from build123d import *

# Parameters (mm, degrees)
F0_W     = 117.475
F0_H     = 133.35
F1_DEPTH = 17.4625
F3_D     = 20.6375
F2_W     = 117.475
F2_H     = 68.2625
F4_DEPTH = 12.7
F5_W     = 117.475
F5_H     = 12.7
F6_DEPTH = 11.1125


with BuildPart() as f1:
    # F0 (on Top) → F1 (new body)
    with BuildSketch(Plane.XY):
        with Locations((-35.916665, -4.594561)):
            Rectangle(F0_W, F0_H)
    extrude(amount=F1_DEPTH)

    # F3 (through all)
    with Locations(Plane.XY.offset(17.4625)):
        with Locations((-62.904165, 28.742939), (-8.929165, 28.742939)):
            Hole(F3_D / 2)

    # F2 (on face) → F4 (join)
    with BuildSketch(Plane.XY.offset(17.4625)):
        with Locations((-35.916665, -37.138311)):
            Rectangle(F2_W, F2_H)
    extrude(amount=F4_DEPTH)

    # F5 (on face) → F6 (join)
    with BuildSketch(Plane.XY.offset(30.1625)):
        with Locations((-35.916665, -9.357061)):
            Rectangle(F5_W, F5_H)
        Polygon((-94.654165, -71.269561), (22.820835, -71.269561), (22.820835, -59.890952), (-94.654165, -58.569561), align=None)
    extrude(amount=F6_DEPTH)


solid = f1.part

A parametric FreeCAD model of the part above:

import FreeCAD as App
import Part
import Sketcher
from FreeCAD import Vector
Q = App.Units.Quantity


def add_polygon(sketch, points):
    """Adds a closed chain of lines whose ends are joined by coincident constraints."""
    first, n = sketch.GeometryCount, len(points)
    for a, b in zip(points, points[1:] + points[:1]):
        sketch.addGeometry(Part.LineSegment(App.Vector(*a, 0), App.Vector(*b, 0)), False)
    for i in range(n):
        sketch.addConstraint(Sketcher.Constraint("Coincident", first + i, 2, first + (i + 1) % n, 1))

doc = App.newDocument("Part")
params = doc.addObject("Spreadsheet::Sheet", "Params")
for row, (alias, value) in enumerate([
    ("sketch1_height", "5.25 in"),
    ("sketch1_width", "4.625 in"),
    ("pad1_length", "0.6875 in"),
    ("sketch2_diameter", "0.8125 in"),
    ("hole_diameter", "0.8125 in"),
    ("sketch3_width", "4.625 in"),
    ("sketch3_height", "2.6875 in"),
    ("pad2_length", "0.5 in"),
    ("sketch4_height", "0.5 in"),
    ("sketch4_width", "4.625 in"),
    ("pad3_length", "0.4375 in"),
], start=1):
    params.set(f"A{row}", alias)
    params.set(f"B{row}", "=" + value)
    params.setAlias(f"B{row}", alias)

body = doc.addObject("PartDesign::Body", "Body")

sketch1 = body.newObject("Sketcher::SketchObject", "Sketch")
sketch1.AttachmentSupport = (doc.getObject("XY_Plane"), [""])
sketch1.MapMode = "FlatFace"
add_polygon(sketch1, [(-95, 62), (-95, -71), (23, -71), (23, 62)])
sketch1.addConstraint(Sketcher.Constraint("Vertical", 0))
sketch1.addConstraint(Sketcher.Constraint("Horizontal", 1))
sketch1.addConstraint(Sketcher.Constraint("Vertical", 2))
sketch1.addConstraint(Sketcher.Constraint("Horizontal", 3))
sketch1.addConstraint(Sketcher.Constraint("DistanceY", 0, 2, 0, 1, Q("5.25 in")))
sketch1.addConstraint(Sketcher.Constraint("DistanceX", 1, 1, 1, 2, Q("4.625 in")))
sketch1.addConstraint(Sketcher.Constraint("DistanceY", 0, 2, -1, 1, Q("71.269561 mm")))
sketch1.addConstraint(Sketcher.Constraint("DistanceX", 0, 2, -1, 1, Q("94.654165 mm")))
sketch1.setExpression("Constraints[8]", "Params.sketch1_height")
sketch1.setExpression("Constraints[9]", "Params.sketch1_width")
pad1 = body.newObject("PartDesign::Pad", "Pad")
pad1.Profile = sketch1
pad1.setExpression("Length", "Params.pad1_length")

sketch2 = body.newObject("Sketcher::SketchObject", "Sketch001")
sketch2.AttachmentSupport = (doc.getObject("XY_Plane"), [""])
sketch2.MapMode = "FlatFace"
sketch2.AttachmentOffset = App.Placement(Vector(0, 0, 0.6875 * 25.4), App.Rotation())
sketch2.addGeometry(Part.Circle(Vector(-63, 29, 0), Vector(0, 0, 1), 10), False)
sketch2.addGeometry(Part.Circle(Vector(-9, 29, 0), Vector(0, 0, 1), 10), False)
sketch2.addConstraint(Sketcher.Constraint("Equal", 0, 1))
sketch2.addConstraint(Sketcher.Constraint("Horizontal", 0, 3, 1, 3))
sketch2.addConstraint(Sketcher.Constraint("Diameter", 0, Q("0.8125 in")))
sketch2.addConstraint(Sketcher.Constraint("DistanceX", 0, 3, 1, 3, Q("2.125 in")))
sketch2.addConstraint(Sketcher.Constraint("DistanceY", -1, 1, 0, 3, Q("28.742939 mm")))
sketch2.addConstraint(Sketcher.Constraint("DistanceX", 0, 3, -1, 1, Q("62.904165 mm")))
sketch2.setExpression("Constraints[2]", "Params.sketch2_diameter")
doc.recompute()
hole = body.newObject("PartDesign::Hole", "Hole")
hole.Profile = sketch2
hole.ThreadType = "None"
hole.setExpression("Diameter", "Params.hole_diameter")
hole.DepthType = "ThroughAll"

sketch3 = body.newObject("Sketcher::SketchObject", "Sketch002")
sketch3.AttachmentSupport = (doc.getObject("XY_Plane"), [""])
sketch3.MapMode = "FlatFace"
sketch3.AttachmentOffset = App.Placement(Vector(0, 0, 0.6875 * 25.4), App.Rotation())
add_polygon(sketch3, [(-95, -3), (-95, -71), (23, -71), (23, -3)])
sketch3.addConstraint(Sketcher.Constraint("Vertical", 0))
sketch3.addConstraint(Sketcher.Constraint("Horizontal", 1))
sketch3.addConstraint(Sketcher.Constraint("Vertical", 2))
sketch3.addConstraint(Sketcher.Constraint("Horizontal", 3))
sketch3.addConstraint(Sketcher.Constraint("DistanceX", 1, 1, 1, 2, Q("4.625 in")))
sketch3.addConstraint(Sketcher.Constraint("DistanceY", 0, 2, 0, 1, Q("2.6875 in")))
sketch3.addConstraint(Sketcher.Constraint("DistanceY", 0, 2, -1, 1, Q("71.269561 mm")))
sketch3.addConstraint(Sketcher.Constraint("DistanceX", 0, 2, -1, 1, Q("94.654165 mm")))
sketch3.setExpression("Constraints[8]", "Params.sketch3_width")
sketch3.setExpression("Constraints[9]", "Params.sketch3_height")
pad2 = body.newObject("PartDesign::Pad", "Pad001")
pad2.Profile = sketch3
pad2.setExpression("Length", "Params.pad2_length")

sketch4 = body.newObject("Sketcher::SketchObject", "Sketch003")
sketch4.AttachmentSupport = (doc.getObject("XY_Plane"), [""])
sketch4.MapMode = "FlatFace"
sketch4.AttachmentOffset = App.Placement(Vector(0, 0, 1.1875 * 25.4), App.Rotation())
add_polygon(sketch4, [(-95, -3), (-95, -16), (23, -16), (23, -3)])
add_polygon(sketch4, [(-95, -71), (23, -71), (23, -60), (-95, -59)])
sketch4.addConstraint(Sketcher.Constraint("Vertical", 0))
sketch4.addConstraint(Sketcher.Constraint("Horizontal", 1))
sketch4.addConstraint(Sketcher.Constraint("Vertical", 2))
sketch4.addConstraint(Sketcher.Constraint("Horizontal", 3))
sketch4.addConstraint(Sketcher.Constraint("Horizontal", 4))
sketch4.addConstraint(Sketcher.Constraint("Vertical", 5))
sketch4.addConstraint(Sketcher.Constraint("Vertical", 7))
sketch4.addConstraint(Sketcher.Constraint("Vertical", 2, 2, 4, 2))
sketch4.addConstraint(Sketcher.Constraint("Vertical", 3, 2, 6, 2))
sketch4.addConstraint(Sketcher.Constraint("Equal", 2, 7))
sketch4.addConstraint(Sketcher.Constraint("DistanceY", 0, 2, 0, 1, Q("0.5 in")))
sketch4.addConstraint(Sketcher.Constraint("DistanceX", 1, 1, 1, 2, Q("4.625 in")))
sketch4.addConstraint(Sketcher.Constraint("DistanceY", 4, 2, 1, 2, Q("2.1875 in")))
sketch4.addConstraint(Sketcher.Constraint("DistanceY", 5, 1, 5, 2, Q("11.378609 mm")))
sketch4.addConstraint(Sketcher.Constraint("DistanceY", 0, 2, -1, 1, Q("15.707061 mm")))
sketch4.addConstraint(Sketcher.Constraint("DistanceX", 0, 2, -1, 1, Q("94.654165 mm")))
sketch4.setExpression("Constraints[18]", "Params.sketch4_height")
sketch4.setExpression("Constraints[19]", "Params.sketch4_width")
pad3 = body.newObject("PartDesign::Pad", "Pad002")
pad3.Profile = sketch4
pad3.setExpression("Length", "Params.pad3_length")

doc.recompute()
